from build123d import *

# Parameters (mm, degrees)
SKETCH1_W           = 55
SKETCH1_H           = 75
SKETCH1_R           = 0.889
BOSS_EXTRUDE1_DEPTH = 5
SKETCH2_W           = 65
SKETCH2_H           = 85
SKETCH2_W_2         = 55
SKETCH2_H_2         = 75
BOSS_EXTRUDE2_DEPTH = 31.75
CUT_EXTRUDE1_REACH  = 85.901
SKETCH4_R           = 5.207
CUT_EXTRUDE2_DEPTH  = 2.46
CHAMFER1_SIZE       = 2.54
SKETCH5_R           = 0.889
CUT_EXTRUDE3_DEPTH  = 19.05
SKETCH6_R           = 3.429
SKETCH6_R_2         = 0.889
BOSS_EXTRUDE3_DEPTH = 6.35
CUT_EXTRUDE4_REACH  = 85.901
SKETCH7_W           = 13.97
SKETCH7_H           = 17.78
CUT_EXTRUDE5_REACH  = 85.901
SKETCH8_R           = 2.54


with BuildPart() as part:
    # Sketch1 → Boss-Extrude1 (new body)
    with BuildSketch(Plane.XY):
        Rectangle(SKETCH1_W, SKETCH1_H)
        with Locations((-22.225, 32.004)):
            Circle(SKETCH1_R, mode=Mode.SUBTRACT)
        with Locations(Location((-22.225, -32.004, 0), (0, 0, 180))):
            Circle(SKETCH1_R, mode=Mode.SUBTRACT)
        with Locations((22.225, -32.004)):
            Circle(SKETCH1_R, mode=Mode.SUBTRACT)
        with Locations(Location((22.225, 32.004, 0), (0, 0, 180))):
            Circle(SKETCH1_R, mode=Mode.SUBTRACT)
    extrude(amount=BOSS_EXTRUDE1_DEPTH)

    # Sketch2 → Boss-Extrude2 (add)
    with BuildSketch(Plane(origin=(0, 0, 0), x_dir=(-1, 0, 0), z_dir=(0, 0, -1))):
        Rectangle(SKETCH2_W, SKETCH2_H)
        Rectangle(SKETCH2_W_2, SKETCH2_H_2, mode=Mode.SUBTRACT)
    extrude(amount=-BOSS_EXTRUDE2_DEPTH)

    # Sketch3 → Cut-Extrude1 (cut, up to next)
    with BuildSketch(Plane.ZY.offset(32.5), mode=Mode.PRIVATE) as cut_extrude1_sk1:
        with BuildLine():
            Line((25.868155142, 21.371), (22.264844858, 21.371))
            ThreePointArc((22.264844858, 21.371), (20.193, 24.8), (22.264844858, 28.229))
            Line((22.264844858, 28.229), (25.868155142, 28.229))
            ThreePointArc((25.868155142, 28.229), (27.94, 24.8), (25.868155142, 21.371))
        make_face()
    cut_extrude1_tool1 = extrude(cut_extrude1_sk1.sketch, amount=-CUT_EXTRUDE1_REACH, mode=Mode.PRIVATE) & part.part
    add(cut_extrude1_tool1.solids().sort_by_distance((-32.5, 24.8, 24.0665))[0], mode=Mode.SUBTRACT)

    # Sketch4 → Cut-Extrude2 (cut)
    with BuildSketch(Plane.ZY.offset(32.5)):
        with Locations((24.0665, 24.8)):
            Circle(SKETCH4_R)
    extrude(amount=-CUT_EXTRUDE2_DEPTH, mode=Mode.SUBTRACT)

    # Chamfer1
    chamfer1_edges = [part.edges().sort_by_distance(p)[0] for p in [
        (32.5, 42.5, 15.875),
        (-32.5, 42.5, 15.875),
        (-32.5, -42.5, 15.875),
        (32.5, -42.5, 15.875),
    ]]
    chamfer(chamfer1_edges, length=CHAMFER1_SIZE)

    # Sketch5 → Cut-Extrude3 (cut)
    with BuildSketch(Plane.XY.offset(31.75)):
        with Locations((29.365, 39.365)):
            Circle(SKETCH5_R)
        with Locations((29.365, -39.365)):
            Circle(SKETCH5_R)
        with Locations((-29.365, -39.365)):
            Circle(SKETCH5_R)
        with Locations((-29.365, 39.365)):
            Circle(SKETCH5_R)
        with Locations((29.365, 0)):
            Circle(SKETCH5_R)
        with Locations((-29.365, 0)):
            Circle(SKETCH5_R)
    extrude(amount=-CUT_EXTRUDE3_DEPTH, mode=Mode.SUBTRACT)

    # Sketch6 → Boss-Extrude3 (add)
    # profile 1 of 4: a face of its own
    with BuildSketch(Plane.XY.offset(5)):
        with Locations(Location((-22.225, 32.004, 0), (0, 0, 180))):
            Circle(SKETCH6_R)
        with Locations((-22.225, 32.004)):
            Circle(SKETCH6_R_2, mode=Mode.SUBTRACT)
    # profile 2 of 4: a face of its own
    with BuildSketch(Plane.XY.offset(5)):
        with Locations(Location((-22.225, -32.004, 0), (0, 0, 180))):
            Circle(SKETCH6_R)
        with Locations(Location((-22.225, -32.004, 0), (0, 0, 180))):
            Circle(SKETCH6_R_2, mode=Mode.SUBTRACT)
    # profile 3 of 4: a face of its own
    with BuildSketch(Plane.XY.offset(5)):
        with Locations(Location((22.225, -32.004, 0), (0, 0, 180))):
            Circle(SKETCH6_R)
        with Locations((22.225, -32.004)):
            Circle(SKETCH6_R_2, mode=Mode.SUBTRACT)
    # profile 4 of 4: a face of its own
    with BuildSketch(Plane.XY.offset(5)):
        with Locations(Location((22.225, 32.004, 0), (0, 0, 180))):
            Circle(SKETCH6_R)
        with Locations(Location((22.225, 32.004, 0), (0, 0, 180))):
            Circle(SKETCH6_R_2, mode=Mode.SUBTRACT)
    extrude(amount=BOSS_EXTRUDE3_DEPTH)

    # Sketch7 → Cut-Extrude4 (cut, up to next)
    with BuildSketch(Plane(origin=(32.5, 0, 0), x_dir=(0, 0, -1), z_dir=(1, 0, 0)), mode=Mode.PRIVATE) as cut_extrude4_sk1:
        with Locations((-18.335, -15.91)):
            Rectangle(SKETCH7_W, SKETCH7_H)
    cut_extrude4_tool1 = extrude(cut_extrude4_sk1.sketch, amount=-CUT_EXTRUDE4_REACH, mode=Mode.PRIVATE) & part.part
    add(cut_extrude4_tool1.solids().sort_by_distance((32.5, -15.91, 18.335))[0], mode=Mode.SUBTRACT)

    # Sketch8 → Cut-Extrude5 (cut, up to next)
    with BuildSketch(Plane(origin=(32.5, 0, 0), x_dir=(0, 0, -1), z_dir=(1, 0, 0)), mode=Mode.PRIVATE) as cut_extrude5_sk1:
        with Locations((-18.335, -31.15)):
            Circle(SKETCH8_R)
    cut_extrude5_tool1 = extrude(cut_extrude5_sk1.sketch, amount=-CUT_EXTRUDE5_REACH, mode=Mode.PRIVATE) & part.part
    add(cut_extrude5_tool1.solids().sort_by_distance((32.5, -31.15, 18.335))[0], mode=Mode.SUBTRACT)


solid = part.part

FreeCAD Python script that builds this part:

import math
import FreeCAD as App
import Part
import Sketcher

V = App.Vector
Q = App.Units.Quantity


def edges_at(feature, points):
    """Names of the edges that pass closest to the given points."""
    edges = feature.Shape.Edges
    near = lambda p: min(range(len(edges)), key=lambda i: edges[i].distToShape(Part.Vertex(*p))[0])
    return sorted({f"Edge{near(p) + 1}" for p in points})

doc = App.newDocument("Part")
body = doc.addObject("PartDesign::Body", "Body")

# Sketch on XY plane
sketch1 = body.newObject("Sketcher::SketchObject", "Sketch")
sketch1.AttachmentSupport = (doc.getObject("XY_Plane"), [""])
sketch1.MapMode = "FlatFace"
sketch1.addGeometry([
    Part.LineSegment(V(-27.5, 37.5, 0), V(-27.5, -37.5, 0)),  # 0
    Part.LineSegment(V(-27.5, -37.5, 0), V(27.5, -37.5, 0)),  # 1
    Part.LineSegment(V(27.5, -37.5, 0), V(27.5, 37.5, 0)),  # 2
    Part.LineSegment(V(27.5, 37.5, 0), V(-27.5, 37.5, 0)),  # 3
    Part.Circle(V(-22.2, -32, 0), V(0, 0, 1), 0.9),  # 4
    Part.Circle(V(22.2, -32, 0), V(0, 0, 1), 0.9),  # 5
    Part.Circle(V(-22.2, 32, 0), V(0, 0, 1), 0.9),  # 6
    Part.Circle(V(22.2, 32, 0), V(0, 0, 1), 0.9),  # 7
], False)
sketch1.addConstraint([
    Sketcher.Constraint("Coincident", 0, 2, 1, 1),
    Sketcher.Constraint("Coincident", 1, 2, 2, 1),
    Sketcher.Constraint("Coincident", 2, 2, 3, 1),
    Sketcher.Constraint("Coincident", 3, 2, 0, 1),
    Sketcher.Constraint("Vertical", 0),
    Sketcher.Constraint("Horizontal", 1),
    Sketcher.Constraint("Vertical", 2),
    Sketcher.Constraint("Horizontal", 3),
    Sketcher.Constraint("Equal", 4, 5),
    Sketcher.Constraint("Equal", 5, 6),
    Sketcher.Constraint("Equal", 6, 7),
    Sketcher.Constraint("Symmetric", 5, 3, 6, 3, -1, 1),
    Sketcher.Constraint("Symmetric", 4, 3, 7, 3, -1, 1),
    Sketcher.Constraint("Symmetric", 0, 2, 2, 2, -1, 1),
    Sketcher.Constraint("Symmetric", 4, 3, 5, 3, -2),
    Sketcher.Constraint("Diameter", 4, Q("0.07 in")),
    Sketcher.Constraint("DistanceY", 4, 3, -1, 1, Q("1.26 in")),
    Sketcher.Constraint("DistanceX", 4, 3, 5, 3, Q("1.75 in")),
    Sketcher.Constraint("DistanceX", 1, 1, 1, 2, 55.0),
    Sketcher.Constraint("DistanceY", 0, 2, 0, 1, 75.0),
])
pad1 = body.newObject("PartDesign::Pad", "Pad")
pad1.Profile = sketch1
pad1.Length = 5

# Sketch on XY plane
sketch2 = body.newObject("Sketcher::SketchObject", "Sketch001")
sketch2.AttachmentSupport = (doc.getObject("XY_Plane"), [""])
sketch2.MapMode = "FlatFace"
sketch2.addGeometry([
    Part.LineSegment(V(32, 42, 0), V(32, -42, 0)),  # 0
    Part.LineSegment(V(32, -42, 0), V(-32, -42, 0)),  # 1
    Part.LineSegment(V(-32, -42, 0), V(-32, 42, 0)),  # 2
    Part.LineSegment(V(-32, 42, 0), V(32, 42, 0)),  # 3
    Part.LineSegment(V(-28, -38, 0), V(28, -38, 0)),  # 4
    Part.LineSegment(V(28, -38, 0), V(28, 38, 0)),  # 5
    Part.LineSegment(V(28, 38, 0), V(-28, 38, 0)),  # 6
    Part.LineSegment(V(-28, 38, 0), V(-28, -38, 0)),  # 7
], False)
sketch2.addConstraint([
    Sketcher.Constraint("Coincident", 0, 2, 1, 1),
    Sketcher.Constraint("Coincident", 1, 2, 2, 1),
    Sketcher.Constraint("Coincident", 2, 2, 3, 1),
    Sketcher.Constraint("Coincident", 3, 2, 0, 1),
    Sketcher.Constraint("Coincident", 4, 2, 5, 1),
    Sketcher.Constraint("Coincident", 5, 2, 6, 1),
    Sketcher.Constraint("Coincident", 6, 2, 7, 1),
    Sketcher.Constraint("Coincident", 7, 2, 4, 1),
    Sketcher.Constraint("Vertical", 0),
    Sketcher.Constraint("Horizontal", 1),
    Sketcher.Constraint("Vertical", 2),
    Sketcher.Constraint("Horizontal", 3),
    Sketcher.Constraint("Horizontal", 4),
    Sketcher.Constraint("Vertical", 5),
    Sketcher.Constraint("Horizontal", 6),
    Sketcher.Constraint("Vertical", 7),
    Sketcher.Constraint("Symmetric", 0, 2, 2, 2, -1, 1),
    Sketcher.Constraint("Symmetric", 4, 2, 6, 2, -1, 1),
    Sketcher.Constraint("DistanceX", 1, 2, 1, 1, 65.0),
    Sketcher.Constraint("DistanceX", 4, 1, 4, 2, 55.0),
    Sketcher.Constraint("DistanceY", 0, 2, 0, 1, 85.0),
    Sketcher.Constraint("DistanceY", 5, 1, 5, 2, 75.0),
])
pad2 = body.newObject("PartDesign::Pad", "Pad001")
pad2.Profile = sketch2
pad2.Length = Q("1.25 in")

# Sketch on YZ plane
sketch3 = body.newObject("Sketcher::SketchObject", "Sketch002")
sketch3.AttachmentSupport = (doc.getObject("YZ_Plane"), [""])
sketch3.MapMode = "FlatFace"
sketch3.AttachmentOffset = App.Placement(V(0, 0, -32.5), App.Rotation())
sketch3.addGeometry([
    Part.LineSegment(V(21.4, 22.3, 0), V(21.4, 25.9, 0)),
    Part.ArcOfCircle(Part.Circle(V(24.8, 24.1, 0), V(0, 0, 1), 3.9), math.radians(28), math.radians(152)),
    Part.LineSegment(V(28.2, 25.9, 0), V(28.2, 22.3, 0)),
    Part.ArcOfCircle(Part.Circle(V(24.8, 24.1, 0), V(0, 0, 1), 3.9), math.radians(-152), math.radians(-28)),
], False)
sketch3.addConstraint([
    Sketcher.Constraint("Coincident", 0, 2, 1, 2),
    Sketcher.Constraint("Coincident", 1, 1, 2, 1),
    Sketcher.Constraint("Coincident", 2, 2, 3, 2),
    Sketcher.Constraint("Coincident", 3, 1, 0, 1),
    Sketcher.Constraint("Vertical", 0),
    Sketcher.Constraint("Vertical", 2),
    Sketcher.Constraint("Coincident", 3, 3, 1, 3),
    Sketcher.Constraint("Equal", 1, 3),
    Sketcher.Constraint("Horizontal", 0, 2, 1, 1),
    Sketcher.Constraint("Radius", 1, Q("0.1525 in")),
    Sketcher.Constraint("DistanceX", 0, 2, 1, 1, Q("0.27 in")),
    Sketcher.Constraint("DistanceY", -1, 1, 1, 3, Q("0.9475 in")),
    Sketcher.Constraint("DistanceX", -1, 1, 1, 3, 24.8),
])
pocket1 = body.newObject("PartDesign::Pocket", "Pocket")
pocket1.Profile = sketch3
pocket1.Type = "UpToFirst"
pocket1.Reversed = True

# Sketch on YZ plane
sketch4 = body.newObject("Sketcher::SketchObject", "Sketch003")
sketch4.AttachmentSupport = (doc.getObject("YZ_Plane"), [""])
sketch4.MapMode = "FlatFace"
sketch4.AttachmentOffset = App.Placement(V(0, 0, -32.5), App.Rotation())
sketch4.addGeometry(Part.Circle(V(25, 24, 0), V(0, 0, 1), 5), False)
sketch4.addConstraint([
    Sketcher.Constraint("Diameter", 0, Q("0.41 in")),
    Sketcher.Constraint("DistanceY", -1, 1, 0, 3, Q("0.9475 in")),
    Sketcher.Constraint("DistanceX", -1, 1, 0, 3, 24.8),
])
pocket2 = body.newObject("PartDesign::Pocket", "Pocket001")
pocket2.Profile = sketch4
pocket2.Length = 2.46
pocket2.Reversed = True
doc.recompute()

chamfer = body.newObject("PartDesign::Chamfer", "Chamfer")
chamfer.Base = (pocket2, edges_at(pocket2, [
    (32.5, 42.5, 15.875),
    (-32.5, 42.5, 15.875),
    (-32.5, -42.5, 15.875),
    (32.5, -42.5, 15.875),
]))
chamfer.Size = Q("0.1 in")

# Sketch on XY plane
sketch5 = body.newObject("Sketcher::SketchObject", "Sketch004")
sketch5.AttachmentSupport = (doc.getObject("XY_Plane"), [""])
sketch5.MapMode = "FlatFace"
sketch5.AttachmentOffset = App.Placement(V(0, 0, 1.25 * 25.4), App.Rotation())
sketch5.addGeometry([
    Part.Circle(V(29.4, 39.4, 0), V(0, 0, 1), 0.9),  # 0
    Part.Circle(V(29.4, -39.4, 0), V(0, 0, 1), 0.9),  # 1
    Part.Circle(V(-29.4, -39.4, 0), V(0, 0, 1), 0.9),  # 2
    Part.Circle(V(-29.4, 39.4, 0), V(0, 0, 1), 0.9),  # 3
    Part.Circle(V(29.4, 0, 0), V(0, 0, 1), 0.9),  # 4
    Part.Circle(V(-29.4, 0, 0), V(0, 0, 1), 0.9),  # 5
], False)
sketch5.addConstraint([
    Sketcher.Constraint("Equal", 0, 1),
    Sketcher.Constraint("Equal", 1, 2),
    Sketcher.Constraint("Equal", 2, 3),
    Sketcher.Constraint("Equal", 3, 4),
    Sketcher.Constraint("Equal", 4, 5),
    Sketcher.Constraint("Symmetric", 0, 3, 2, 3, -1, 1),
    Sketcher.Constraint("Symmetric", 1, 3, 3, 3, -1, 1),
    Sketcher.Constraint("Symmetric", 4, 3, 5, 3, -1, 1),
    Sketcher.Constraint("Symmetric", 1, 3, 2, 3, -2),
    Sketcher.Constraint("PointOnObject", 4, 3, -1),
    Sketcher.Constraint("Vertical", 1, 3, 4, 3),
    Sketcher.Constraint("Diameter", 0, Q("0.07 in")),
    Sketcher.Constraint("DistanceX", -1, 1, 0, 3, 29.365),
    Sketcher.Constraint("DistanceY", -1, 1, 0, 3, 39.365),
])
pocket3 = body.newObject("PartDesign::Pocket", "Pocket002")
pocket3.Profile = sketch5
pocket3.Length = Q("0.75 in")

# Sketch on XY plane
sketch6 = body.newObject("Sketcher::SketchObject", "Sketch005")
sketch6.AttachmentSupport = (doc.getObject("XY_Plane"), [""])
sketch6.MapMode = "FlatFace"
sketch6.AttachmentOffset = App.Placement(V(0, 0, 5), App.Rotation())
sketch6.addGeometry([
    Part.Circle(V(-22.2, 32, 0), V(0, 0, 1), 3.4),  # 0
    Part.Circle(V(-22.2, 32, 0), V(0, 0, 1), 0.9),  # 1
    Part.Circle(V(-22.2, -32, 0), V(0, 0, 1), 3.4),  # 2
    Part.Circle(V(-22.2, -32, 0), V(0, 0, 1), 0.9),  # 3
    Part.Circle(V(22.2, -32, 0), V(0, 0, 1), 3.4),  # 4
    Part.Circle(V(22.2, -32, 0), V(0, 0, 1), 0.9),  # 5
    Part.Circle(V(22.2, 32, 0), V(0, 0, 1), 3.4),  # 6
    Part.Circle(V(22.2, 32, 0), V(0, 0, 1), 0.9),  # 7
], False)
sketch6.addConstraint([
    Sketcher.Constraint("Coincident", 1, 3, 0, 3),
    Sketcher.Constraint("Coincident", 3, 3, 2, 3),
    Sketcher.Constraint("Coincident", 5, 3, 4, 3),
    Sketcher.Constraint("Coincident", 7, 3, 6, 3),
    Sketcher.Constraint("Equal", 0, 2),
    Sketcher.Constraint("Equal", 1, 3),
    Sketcher.Constraint("Equal", 2, 4),
    Sketcher.Constraint("Equal", 3, 5),
    Sketcher.Constraint("Equal", 4, 6),
    Sketcher.Constraint("Equal", 5, 7),
    Sketcher.Constraint("Symmetric", 0, 3, 4, 3, -1, 1),
    Sketcher.Constraint("Symmetric", 2, 3, 6, 3, -1, 1),
    Sketcher.Constraint("Symmetric", 2, 3, 4, 3, -2),
    Sketcher.Constraint("Diameter", 0, Q("0.27 in")),
    Sketcher.Constraint("Diameter", 1, Q("0.07 in")),
    Sketcher.Constraint("DistanceY", -1, 1, 0, 3, Q("1.26 in")),
    Sketcher.Constraint("DistanceX", 2, 3, 4, 3, Q("1.75 in")),
])
pad3 = body.newObject("PartDesign::Pad", "Pad002")
pad3.Profile = sketch6
pad3.Length = Q("0.25 in")

# Sketch on YZ plane
sketch7 = body.newObject("Sketcher::SketchObject", "Sketch006")
sketch7.AttachmentSupport = (doc.getObject("YZ_Plane"), [""])
sketch7.MapMode = "FlatFace"
sketch7.AttachmentOffset = App.Placement(V(0, 0, 32.5), App.Rotation())
sketch7.addGeometry([
    Part.LineSegment(V(-7, 25, 0), V(-25, 25, 0)),
    Part.LineSegment(V(-25, 25, 0), V(-25, 11, 0)),
    Part.LineSegment(V(-25, 11, 0), V(-7, 11, 0)),
    Part.LineSegment(V(-7, 11, 0), V(-7, 25, 0)),
], False)
sketch7.addConstraint([
    Sketcher.Constraint("Coincident", 0, 2, 1, 1),
    Sketcher.Constraint("Coincident", 1, 2, 2, 1),
    Sketcher.Constraint("Coincident", 2, 2, 3, 1),
    Sketcher.Constraint("Coincident", 3, 2, 0, 1),
    Sketcher.Constraint("Horizontal", 0),
    Sketcher.Constraint("Vertical", 1),
    Sketcher.Constraint("Horizontal", 2),
    Sketcher.Constraint("Vertical", 3),
    Sketcher.Constraint("DistanceX", 0, 2, 0, 1, Q("0.7 in")),
    Sketcher.Constraint("DistanceY", 1, 2, 1, 1, Q("0.55 in")),
    Sketcher.Constraint("DistanceX", 0, 2, -1, 1, 24.8),
    Sketcher.Constraint("DistanceY", -1, 1, 0, 2, 25.32),
])
pocket4 = body.newObject("PartDesign::Pocket", "Pocket003")
pocket4.Profile = sketch7
pocket4.Type = "UpToFirst"

# Sketch on YZ plane
sketch8 = body.newObject("Sketcher::SketchObject", "Sketch007")
sketch8.AttachmentSupport = (doc.getObject("YZ_Plane"), [""])
sketch8.MapMode = "FlatFace"
sketch8.AttachmentOffset = App.Placement(V(0, 0, 32.5), App.Rotation())
sketch8.addGeometry(Part.Circle(V(-31.1, 18.3, 0), V(0, 0, 1), 2.5), False)
sketch8.addConstraint([
    Sketcher.Constraint("Diameter", 0, Q("0.2 in")),
    Sketcher.Constraint("DistanceX", 0, 3, -1, 1, 31.15),
    Sketcher.Constraint("DistanceY", -1, 1, 0, 3, 18.335),
])
pocket5 = body.newObject("PartDesign::Pocket", "Pocket004")
pocket5.Profile = sketch8
pocket5.Type = "UpToFirst"

doc.recompute()
